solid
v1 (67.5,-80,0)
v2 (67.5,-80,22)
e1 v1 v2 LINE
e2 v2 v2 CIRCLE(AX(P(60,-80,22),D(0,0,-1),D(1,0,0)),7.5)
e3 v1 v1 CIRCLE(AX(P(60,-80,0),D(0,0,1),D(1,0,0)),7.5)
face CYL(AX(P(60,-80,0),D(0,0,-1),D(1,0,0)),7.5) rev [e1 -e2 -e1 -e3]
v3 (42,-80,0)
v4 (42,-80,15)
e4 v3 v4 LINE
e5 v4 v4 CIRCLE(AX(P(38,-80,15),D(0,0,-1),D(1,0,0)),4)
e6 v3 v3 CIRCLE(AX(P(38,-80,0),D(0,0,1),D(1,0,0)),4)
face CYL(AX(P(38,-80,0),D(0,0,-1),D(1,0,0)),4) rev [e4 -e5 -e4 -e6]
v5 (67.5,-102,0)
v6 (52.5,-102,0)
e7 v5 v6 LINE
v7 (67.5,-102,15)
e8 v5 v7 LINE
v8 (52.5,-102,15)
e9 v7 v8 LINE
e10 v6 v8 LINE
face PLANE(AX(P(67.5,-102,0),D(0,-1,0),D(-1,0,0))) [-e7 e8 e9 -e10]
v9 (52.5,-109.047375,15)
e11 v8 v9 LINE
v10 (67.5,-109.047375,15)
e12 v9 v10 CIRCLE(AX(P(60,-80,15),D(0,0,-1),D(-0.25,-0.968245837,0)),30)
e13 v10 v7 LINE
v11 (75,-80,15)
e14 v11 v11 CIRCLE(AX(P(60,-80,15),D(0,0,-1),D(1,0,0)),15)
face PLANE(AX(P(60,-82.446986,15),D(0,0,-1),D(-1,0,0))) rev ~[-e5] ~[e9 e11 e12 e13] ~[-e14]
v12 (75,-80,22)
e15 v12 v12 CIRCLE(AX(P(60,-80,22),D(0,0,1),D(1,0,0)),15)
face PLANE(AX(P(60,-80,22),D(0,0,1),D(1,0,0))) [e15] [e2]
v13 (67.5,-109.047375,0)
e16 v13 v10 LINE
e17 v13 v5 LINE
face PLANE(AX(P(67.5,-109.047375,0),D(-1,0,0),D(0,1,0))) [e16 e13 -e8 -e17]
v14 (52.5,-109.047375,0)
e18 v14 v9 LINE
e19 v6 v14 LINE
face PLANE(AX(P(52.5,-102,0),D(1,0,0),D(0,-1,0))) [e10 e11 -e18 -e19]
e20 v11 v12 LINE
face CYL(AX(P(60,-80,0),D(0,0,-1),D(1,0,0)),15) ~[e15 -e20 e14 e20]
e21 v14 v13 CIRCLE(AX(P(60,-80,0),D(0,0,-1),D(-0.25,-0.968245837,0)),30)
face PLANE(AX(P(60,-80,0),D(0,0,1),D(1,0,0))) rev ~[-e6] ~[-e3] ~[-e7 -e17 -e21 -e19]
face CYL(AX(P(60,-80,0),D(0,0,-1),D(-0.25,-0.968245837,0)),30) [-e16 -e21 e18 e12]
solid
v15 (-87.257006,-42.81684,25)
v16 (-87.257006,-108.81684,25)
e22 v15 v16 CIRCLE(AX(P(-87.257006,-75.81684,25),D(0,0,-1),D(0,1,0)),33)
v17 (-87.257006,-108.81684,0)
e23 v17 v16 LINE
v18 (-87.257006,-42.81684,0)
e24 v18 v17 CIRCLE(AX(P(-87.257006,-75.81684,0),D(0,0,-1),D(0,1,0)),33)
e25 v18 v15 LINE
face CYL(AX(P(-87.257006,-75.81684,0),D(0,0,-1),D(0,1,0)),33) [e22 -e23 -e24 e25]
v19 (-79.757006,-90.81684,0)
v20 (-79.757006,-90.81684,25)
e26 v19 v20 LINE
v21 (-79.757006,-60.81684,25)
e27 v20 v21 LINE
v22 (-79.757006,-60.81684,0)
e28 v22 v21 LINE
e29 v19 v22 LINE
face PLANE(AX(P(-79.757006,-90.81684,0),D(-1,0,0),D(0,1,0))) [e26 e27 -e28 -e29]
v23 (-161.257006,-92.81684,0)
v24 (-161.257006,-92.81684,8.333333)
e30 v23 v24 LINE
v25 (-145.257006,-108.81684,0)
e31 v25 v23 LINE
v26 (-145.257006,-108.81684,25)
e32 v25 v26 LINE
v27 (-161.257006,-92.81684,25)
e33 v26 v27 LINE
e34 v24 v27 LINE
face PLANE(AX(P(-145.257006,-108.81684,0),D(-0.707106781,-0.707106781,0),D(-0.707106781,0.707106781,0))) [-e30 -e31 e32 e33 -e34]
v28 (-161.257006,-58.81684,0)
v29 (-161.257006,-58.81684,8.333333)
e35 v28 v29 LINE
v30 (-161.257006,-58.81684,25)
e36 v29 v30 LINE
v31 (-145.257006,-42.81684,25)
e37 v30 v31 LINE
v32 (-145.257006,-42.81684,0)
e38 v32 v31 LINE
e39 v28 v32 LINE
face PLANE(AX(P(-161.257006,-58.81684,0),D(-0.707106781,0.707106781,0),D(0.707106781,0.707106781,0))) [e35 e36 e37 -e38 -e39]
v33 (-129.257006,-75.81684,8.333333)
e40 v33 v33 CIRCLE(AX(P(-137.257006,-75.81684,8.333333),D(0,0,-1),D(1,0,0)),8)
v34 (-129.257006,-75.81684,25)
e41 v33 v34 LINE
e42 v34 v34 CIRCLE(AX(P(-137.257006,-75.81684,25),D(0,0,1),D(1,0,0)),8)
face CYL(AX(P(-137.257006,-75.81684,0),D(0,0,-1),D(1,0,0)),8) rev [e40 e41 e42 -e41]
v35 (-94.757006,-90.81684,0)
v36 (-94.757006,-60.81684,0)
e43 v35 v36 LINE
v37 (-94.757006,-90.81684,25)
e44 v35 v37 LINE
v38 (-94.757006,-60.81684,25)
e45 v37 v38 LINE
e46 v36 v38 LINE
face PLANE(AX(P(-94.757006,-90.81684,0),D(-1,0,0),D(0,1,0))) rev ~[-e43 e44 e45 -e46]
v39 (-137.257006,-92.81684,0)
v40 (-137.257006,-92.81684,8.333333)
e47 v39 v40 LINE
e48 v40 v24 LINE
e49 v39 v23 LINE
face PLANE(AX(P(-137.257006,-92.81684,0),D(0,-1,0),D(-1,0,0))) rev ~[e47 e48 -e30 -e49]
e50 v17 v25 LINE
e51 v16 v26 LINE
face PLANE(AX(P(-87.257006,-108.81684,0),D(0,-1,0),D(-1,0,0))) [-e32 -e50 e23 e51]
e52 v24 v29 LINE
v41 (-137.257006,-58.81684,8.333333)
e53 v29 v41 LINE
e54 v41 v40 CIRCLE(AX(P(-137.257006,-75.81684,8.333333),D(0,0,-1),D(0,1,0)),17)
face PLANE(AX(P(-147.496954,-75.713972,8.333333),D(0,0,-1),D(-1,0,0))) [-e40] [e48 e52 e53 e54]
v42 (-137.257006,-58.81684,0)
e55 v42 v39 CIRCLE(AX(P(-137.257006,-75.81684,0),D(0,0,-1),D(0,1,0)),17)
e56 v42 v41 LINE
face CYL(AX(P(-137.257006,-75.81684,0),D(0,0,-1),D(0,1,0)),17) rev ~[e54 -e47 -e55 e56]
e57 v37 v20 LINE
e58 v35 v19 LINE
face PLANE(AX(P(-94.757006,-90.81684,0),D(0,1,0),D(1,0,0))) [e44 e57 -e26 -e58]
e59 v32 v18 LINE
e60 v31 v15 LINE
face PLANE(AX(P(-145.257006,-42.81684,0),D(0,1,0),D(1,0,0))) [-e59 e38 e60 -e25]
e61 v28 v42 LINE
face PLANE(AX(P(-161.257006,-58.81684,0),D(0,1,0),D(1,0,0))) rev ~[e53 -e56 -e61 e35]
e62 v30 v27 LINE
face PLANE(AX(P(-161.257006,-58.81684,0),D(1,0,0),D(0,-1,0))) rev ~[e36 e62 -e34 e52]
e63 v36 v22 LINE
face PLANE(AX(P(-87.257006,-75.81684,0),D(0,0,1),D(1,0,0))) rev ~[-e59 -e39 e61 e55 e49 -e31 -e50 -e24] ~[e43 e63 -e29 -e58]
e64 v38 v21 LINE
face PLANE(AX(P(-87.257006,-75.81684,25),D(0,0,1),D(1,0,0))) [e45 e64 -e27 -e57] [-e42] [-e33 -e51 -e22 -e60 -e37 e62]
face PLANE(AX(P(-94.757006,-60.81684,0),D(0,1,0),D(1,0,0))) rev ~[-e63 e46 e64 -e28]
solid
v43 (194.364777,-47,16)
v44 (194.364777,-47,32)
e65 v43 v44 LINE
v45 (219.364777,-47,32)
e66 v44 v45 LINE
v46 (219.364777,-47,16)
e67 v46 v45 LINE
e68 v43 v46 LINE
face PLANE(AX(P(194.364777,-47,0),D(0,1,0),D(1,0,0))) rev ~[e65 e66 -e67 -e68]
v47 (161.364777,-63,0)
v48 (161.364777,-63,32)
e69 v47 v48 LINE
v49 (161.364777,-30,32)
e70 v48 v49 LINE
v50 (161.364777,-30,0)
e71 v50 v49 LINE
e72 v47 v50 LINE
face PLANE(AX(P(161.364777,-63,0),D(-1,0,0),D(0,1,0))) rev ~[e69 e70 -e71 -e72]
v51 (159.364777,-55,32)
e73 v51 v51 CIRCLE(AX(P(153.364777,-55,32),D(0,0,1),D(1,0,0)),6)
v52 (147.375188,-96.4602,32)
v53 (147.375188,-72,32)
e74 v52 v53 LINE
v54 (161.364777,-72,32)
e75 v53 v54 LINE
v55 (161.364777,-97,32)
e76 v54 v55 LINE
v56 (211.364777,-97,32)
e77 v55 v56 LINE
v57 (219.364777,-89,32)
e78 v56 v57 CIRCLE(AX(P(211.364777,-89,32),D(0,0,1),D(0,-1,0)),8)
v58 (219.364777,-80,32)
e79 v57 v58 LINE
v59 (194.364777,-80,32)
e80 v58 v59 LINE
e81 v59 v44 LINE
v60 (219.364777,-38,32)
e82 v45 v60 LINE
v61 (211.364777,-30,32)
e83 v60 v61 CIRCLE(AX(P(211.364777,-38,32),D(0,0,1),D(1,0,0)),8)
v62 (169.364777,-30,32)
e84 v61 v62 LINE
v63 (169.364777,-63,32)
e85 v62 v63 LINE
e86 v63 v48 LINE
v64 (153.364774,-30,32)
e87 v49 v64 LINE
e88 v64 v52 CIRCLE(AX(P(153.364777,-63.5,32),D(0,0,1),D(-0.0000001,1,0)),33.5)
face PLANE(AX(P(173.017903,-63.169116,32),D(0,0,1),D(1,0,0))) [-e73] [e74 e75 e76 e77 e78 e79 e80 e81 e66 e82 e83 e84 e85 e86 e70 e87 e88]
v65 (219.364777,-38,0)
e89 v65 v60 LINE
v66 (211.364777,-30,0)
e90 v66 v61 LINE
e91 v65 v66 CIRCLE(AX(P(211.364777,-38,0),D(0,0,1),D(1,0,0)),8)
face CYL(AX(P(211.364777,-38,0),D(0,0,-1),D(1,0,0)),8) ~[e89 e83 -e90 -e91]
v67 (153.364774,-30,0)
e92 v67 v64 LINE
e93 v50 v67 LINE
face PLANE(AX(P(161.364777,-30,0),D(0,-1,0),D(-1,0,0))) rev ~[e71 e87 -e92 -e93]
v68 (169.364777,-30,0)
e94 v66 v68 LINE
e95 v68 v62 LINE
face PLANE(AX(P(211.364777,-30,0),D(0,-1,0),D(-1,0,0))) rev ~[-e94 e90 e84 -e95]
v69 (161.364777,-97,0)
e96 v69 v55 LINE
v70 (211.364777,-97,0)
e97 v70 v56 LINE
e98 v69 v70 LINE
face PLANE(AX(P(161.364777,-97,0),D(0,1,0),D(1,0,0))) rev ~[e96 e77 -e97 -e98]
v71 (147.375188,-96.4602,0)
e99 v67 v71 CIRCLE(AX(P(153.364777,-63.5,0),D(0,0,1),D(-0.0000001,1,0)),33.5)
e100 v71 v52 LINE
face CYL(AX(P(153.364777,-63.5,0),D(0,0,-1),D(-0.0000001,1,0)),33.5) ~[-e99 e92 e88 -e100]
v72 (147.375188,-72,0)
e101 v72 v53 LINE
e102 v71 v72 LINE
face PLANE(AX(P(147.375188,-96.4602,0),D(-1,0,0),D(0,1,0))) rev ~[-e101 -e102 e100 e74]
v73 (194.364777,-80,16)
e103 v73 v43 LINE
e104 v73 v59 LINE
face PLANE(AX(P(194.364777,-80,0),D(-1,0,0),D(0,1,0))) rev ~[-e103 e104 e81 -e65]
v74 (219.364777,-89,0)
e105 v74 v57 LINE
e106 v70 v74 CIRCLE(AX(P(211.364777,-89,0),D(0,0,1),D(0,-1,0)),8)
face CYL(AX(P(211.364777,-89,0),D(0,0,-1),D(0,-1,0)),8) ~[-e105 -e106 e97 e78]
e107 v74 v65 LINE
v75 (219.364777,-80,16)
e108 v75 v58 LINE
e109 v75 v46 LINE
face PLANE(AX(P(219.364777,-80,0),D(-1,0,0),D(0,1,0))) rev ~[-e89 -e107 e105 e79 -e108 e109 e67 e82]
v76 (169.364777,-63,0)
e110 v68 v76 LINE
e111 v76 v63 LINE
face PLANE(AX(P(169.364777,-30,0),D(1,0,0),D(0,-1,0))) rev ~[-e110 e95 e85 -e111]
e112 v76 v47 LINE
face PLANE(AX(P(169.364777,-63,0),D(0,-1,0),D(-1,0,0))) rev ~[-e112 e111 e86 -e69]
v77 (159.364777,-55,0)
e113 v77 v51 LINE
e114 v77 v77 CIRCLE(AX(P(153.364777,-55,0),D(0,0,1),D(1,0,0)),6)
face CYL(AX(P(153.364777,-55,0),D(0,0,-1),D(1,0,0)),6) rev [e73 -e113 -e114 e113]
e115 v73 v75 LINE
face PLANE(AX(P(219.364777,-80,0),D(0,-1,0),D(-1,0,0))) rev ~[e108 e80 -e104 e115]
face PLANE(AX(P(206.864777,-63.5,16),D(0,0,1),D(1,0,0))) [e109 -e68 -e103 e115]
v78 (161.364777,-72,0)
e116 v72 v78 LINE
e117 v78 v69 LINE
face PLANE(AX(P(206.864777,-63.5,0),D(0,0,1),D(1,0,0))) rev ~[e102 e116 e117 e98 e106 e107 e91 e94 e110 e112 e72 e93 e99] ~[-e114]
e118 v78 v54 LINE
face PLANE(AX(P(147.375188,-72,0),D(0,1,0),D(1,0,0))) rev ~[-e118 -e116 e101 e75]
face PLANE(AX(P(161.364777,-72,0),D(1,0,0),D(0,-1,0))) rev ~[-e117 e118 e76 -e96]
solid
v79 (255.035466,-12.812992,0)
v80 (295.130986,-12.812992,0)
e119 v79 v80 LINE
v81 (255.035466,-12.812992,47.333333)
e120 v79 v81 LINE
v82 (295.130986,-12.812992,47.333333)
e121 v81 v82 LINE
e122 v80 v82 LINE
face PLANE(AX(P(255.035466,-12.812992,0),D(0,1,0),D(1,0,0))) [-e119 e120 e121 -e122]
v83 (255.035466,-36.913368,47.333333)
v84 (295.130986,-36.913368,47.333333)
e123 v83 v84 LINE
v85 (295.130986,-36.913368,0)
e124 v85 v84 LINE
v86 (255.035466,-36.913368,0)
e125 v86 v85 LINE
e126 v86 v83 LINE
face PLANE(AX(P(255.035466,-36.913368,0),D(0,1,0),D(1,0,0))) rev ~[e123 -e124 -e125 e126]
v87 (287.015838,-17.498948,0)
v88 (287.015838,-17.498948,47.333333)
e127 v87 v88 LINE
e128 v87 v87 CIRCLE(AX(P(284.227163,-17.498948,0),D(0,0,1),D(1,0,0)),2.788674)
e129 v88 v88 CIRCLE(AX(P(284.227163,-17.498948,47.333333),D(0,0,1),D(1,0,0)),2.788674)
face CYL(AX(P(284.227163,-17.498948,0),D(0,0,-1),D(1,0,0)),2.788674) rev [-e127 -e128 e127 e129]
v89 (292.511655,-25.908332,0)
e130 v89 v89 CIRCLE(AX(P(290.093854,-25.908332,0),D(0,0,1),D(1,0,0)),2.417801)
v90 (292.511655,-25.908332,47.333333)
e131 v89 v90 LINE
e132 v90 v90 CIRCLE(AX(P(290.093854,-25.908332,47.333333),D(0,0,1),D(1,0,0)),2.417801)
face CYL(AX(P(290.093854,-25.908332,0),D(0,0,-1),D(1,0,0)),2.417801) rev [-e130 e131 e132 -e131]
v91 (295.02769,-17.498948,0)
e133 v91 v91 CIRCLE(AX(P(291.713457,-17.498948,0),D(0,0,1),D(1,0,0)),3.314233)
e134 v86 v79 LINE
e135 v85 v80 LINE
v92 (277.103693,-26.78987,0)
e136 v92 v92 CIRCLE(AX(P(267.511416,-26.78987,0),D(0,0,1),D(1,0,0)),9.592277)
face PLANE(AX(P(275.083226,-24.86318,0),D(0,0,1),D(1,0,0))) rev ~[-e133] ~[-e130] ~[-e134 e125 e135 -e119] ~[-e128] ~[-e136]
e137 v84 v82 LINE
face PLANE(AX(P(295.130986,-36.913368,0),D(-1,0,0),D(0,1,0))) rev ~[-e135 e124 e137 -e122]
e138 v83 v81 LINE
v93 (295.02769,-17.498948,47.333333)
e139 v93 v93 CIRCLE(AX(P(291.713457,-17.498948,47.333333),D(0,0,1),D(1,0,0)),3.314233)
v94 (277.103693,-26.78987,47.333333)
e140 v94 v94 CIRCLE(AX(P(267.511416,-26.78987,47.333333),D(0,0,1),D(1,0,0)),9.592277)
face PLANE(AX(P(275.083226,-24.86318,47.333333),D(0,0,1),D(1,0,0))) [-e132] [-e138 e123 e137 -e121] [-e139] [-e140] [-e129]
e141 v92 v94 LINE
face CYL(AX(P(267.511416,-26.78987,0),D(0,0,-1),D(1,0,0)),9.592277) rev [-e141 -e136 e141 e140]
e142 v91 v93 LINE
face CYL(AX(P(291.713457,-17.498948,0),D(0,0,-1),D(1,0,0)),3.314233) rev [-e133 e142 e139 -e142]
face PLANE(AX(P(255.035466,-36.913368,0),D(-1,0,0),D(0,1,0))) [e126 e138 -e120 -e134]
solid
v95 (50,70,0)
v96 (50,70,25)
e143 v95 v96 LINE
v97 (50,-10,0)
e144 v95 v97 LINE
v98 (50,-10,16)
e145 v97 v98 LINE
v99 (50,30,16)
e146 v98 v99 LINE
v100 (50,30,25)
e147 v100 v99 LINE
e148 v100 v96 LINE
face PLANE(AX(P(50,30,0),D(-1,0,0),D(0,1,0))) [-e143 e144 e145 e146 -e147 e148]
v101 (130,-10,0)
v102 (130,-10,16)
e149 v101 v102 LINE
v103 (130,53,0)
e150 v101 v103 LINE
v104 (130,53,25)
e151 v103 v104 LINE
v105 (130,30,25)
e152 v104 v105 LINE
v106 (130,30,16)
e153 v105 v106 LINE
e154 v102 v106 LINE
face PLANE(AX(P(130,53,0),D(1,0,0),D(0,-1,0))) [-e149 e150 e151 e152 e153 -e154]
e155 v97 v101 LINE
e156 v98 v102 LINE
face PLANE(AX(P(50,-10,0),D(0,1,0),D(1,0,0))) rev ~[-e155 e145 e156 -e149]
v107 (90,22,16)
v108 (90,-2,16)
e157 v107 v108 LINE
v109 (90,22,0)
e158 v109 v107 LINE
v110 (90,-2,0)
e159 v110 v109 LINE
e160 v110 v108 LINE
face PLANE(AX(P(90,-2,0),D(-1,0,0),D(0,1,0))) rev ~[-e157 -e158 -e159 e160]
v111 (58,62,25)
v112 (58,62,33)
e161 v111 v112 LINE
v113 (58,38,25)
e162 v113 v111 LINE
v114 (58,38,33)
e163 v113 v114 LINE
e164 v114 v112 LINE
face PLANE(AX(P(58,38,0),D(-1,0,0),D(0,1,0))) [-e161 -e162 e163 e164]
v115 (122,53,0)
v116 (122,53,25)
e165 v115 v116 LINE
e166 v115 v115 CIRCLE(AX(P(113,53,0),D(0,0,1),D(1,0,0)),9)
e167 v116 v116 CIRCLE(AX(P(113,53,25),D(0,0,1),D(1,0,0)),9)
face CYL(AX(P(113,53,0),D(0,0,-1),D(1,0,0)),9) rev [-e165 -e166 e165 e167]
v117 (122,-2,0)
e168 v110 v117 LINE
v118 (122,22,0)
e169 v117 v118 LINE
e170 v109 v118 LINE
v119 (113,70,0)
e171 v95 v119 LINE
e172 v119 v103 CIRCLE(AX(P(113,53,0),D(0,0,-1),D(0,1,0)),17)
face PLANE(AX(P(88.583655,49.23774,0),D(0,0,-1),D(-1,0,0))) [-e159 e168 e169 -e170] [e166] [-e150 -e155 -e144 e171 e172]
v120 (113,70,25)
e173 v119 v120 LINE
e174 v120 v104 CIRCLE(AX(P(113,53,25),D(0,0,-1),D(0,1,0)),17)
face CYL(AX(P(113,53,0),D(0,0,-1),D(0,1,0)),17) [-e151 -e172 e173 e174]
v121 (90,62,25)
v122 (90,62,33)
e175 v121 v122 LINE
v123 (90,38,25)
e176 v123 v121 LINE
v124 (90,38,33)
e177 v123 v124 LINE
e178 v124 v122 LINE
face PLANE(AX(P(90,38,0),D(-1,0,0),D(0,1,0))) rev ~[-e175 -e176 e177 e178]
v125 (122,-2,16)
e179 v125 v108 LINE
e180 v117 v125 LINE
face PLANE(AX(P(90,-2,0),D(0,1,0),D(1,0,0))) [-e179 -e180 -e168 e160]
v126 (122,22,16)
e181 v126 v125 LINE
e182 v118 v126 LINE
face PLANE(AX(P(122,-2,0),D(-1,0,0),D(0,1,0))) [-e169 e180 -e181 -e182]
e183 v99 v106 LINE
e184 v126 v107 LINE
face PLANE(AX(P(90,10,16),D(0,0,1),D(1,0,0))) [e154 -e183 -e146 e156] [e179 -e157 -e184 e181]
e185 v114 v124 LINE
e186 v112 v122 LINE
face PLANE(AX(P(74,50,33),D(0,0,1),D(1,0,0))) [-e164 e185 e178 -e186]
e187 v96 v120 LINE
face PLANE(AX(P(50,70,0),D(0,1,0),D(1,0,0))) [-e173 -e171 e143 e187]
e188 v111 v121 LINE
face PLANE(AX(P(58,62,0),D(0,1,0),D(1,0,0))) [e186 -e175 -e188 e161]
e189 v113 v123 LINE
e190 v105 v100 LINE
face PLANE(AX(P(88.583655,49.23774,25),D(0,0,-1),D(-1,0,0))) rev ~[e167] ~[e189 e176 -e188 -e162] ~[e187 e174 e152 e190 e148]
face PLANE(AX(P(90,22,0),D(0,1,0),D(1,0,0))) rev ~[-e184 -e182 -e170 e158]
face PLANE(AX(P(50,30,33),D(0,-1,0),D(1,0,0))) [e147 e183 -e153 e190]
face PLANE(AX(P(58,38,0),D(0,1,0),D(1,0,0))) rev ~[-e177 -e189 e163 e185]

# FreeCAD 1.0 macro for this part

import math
import FreeCAD as App
import Part
import Sketcher
Q = App.Units.Quantity

doc = App.newDocument("Part")
body = doc.addObject("PartDesign::Body", "Body")

# Sketch on XY plane
sketch1 = body.newObject("Sketcher::SketchObject", "Sketch")
sketch1.AttachmentSupport = (doc.getObject("XY_Plane"), [""])
sketch1.MapMode = "FlatFace"
sketch1.addGeometry([
    Part.ArcOfCircle(Part.Circle(App.Vector(113, 53, 0), App.Vector(0, 0, 1), 17), math.radians(0), math.radians(90)),  # 0
    Part.LineSegment(App.Vector(113, 70, 0), App.Vector(50, 70, 0)),  # 1
    Part.LineSegment(App.Vector(50, 70, 0), App.Vector(50, 30, 0)),  # 2
    Part.LineSegment(App.Vector(50, 30, 0), App.Vector(130, 30, 0)),  # 3
    Part.LineSegment(App.Vector(130, 30, 0), App.Vector(130, 53, 0)),  # 4
    Part.Circle(App.Vector(113, 53, 0), App.Vector(0, 0, 1), 9),  # 5
    Part.LineSegment(App.Vector(58, 38, 0), App.Vector(58, 62, 0)),  # 6
    Part.LineSegment(App.Vector(58, 62, 0), App.Vector(90, 62, 0)),  # 7
    Part.LineSegment(App.Vector(90, 62, 0), App.Vector(90, 38, 0)),  # 8
    Part.LineSegment(App.Vector(90, 38, 0), App.Vector(58, 38, 0)),  # 9
], False)
sketch1.addConstraint([
    Sketcher.Constraint("Tangent", 0, 2, 1, 1),
    Sketcher.Constraint("Coincident", 1, 2, 2, 1),
    Sketcher.Constraint("Coincident", 2, 2, 3, 1),
    Sketcher.Constraint("Coincident", 3, 2, 4, 1),
    Sketcher.Constraint("Tangent", 4, 2, 0, 1),
    Sketcher.Constraint("Coincident", 6, 2, 7, 1),
    Sketcher.Constraint("Coincident", 7, 2, 8, 1),
    Sketcher.Constraint("Coincident", 8, 2, 9, 1),
    Sketcher.Constraint("Coincident", 9, 2, 6, 1),
    Sketcher.Constraint("Horizontal", 1),
    Sketcher.Constraint("Vertical", 2),
    Sketcher.Constraint("Horizontal", 3),
    Sketcher.Constraint("Vertical", 4),
    Sketcher.Constraint("Vertical", 6),
    Sketcher.Constraint("Horizontal", 7),
    Sketcher.Constraint("Vertical", 8),
    Sketcher.Constraint("Horizontal", 9),
    Sketcher.Constraint("Coincident", 5, 3, 0, 3),
    Sketcher.Constraint("Diameter", 5, Q("18 mm")),
    Sketcher.Constraint("Radius", 0, Q("17 mm")),
    Sketcher.Constraint("DistanceX", 1, 2, 1, 1, Q("63 mm")),
    Sketcher.Constraint("DistanceX", 7, 1, 7, 2, Q("32 mm")),
    Sketcher.Constraint("DistanceY", 2, 2, 2, 1, Q("40 mm")),
    Sketcher.Constraint("DistanceY", 6, 1, 6, 2, Q("24 mm")),
    Sketcher.Constraint("DistanceX", -1, 1, 0, 3, Q("113 mm")),
    Sketcher.Constraint("DistanceY", -1, 1, 0, 3, Q("53 mm")),
    Sketcher.Constraint("DistanceX", -1, 1, 6, 2, Q("58 mm")),
    Sketcher.Constraint("DistanceY", -1, 1, 6, 2, Q("62 mm")),
])
pad1 = body.newObject("PartDesign::Pad", "Pad")
pad1.Profile = sketch1
pad1.Length = 25

# Sketch on XY plane
sketch2 = body.newObject("Sketcher::SketchObject", "Sketch001")
sketch2.AttachmentSupport = (doc.getObject("XY_Plane"), [""])
sketch2.MapMode = "FlatFace"
sketch2.addGeometry([
    Part.LineSegment(App.Vector(58, 62, 0), App.Vector(58, 38, 0)),  # 0
    Part.LineSegment(App.Vector(58, 38, 0), App.Vector(90, 38, 0)),  # 1
    Part.LineSegment(App.Vector(90, 38, 0), App.Vector(90, 62, 0)),  # 2
    Part.LineSegment(App.Vector(90, 62, 0), App.Vector(58, 62, 0)),  # 3
    Part.LineSegment(App.Vector(50, 30, 0), App.Vector(50, -10, 0)),  # 4
    Part.LineSegment(App.Vector(50, -10, 0), App.Vector(130, -10, 0)),  # 5
    Part.LineSegment(App.Vector(130, -10, 0), App.Vector(130, 30, 0)),  # 6
    Part.LineSegment(App.Vector(130, 30, 0), App.Vector(50, 30, 0)),  # 7
], False)
sketch2.addConstraint([
    Sketcher.Constraint("Coincident", 0, 2, 1, 1),
    Sketcher.Constraint("Coincident", 1, 2, 2, 1),
    Sketcher.Constraint("Coincident", 2, 2, 3, 1),
    Sketcher.Constraint("Coincident", 3, 2, 0, 1),
    Sketcher.Constraint("Coincident", 4, 2, 5, 1),
    Sketcher.Constraint("Coincident", 5, 2, 6, 1),
    Sketcher.Constraint("Coincident", 6, 2, 7, 1),
    Sketcher.Constraint("Coincident", 7, 2, 4, 1),
    Sketcher.Constraint("Vertical", 0),
    Sketcher.Constraint("Horizontal", 1),
    Sketcher.Constraint("Vertical", 2),
    Sketcher.Constraint("Horizontal", 3),
    Sketcher.Constraint("Vertical", 4),
    Sketcher.Constraint("Horizontal", 5),
    Sketcher.Constraint("Vertical", 6),
    Sketcher.Constraint("Horizontal", 7),
    Sketcher.Constraint("DistanceX", 1, 1, 1, 2, Q("32 mm")),
    Sketcher.Constraint("DistanceX", 5, 1, 5, 2, Q("80 mm")),
    Sketcher.Constraint("DistanceY", 0, 2, 0, 1, Q("24 mm")),
    Sketcher.Constraint("DistanceY", 4, 2, 4, 1, Q("40 mm")),
    Sketcher.Constraint("DistanceX", -1, 1, 0, 2, Q("58 mm")),
    Sketcher.Constraint("DistanceY", -1, 1, 0, 2, Q("38 mm")),
    Sketcher.Constraint("DistanceX", -1, 1, 4, 2, Q("50 mm")),
    Sketcher.Constraint("DistanceY", 4, 2, -1, 1, Q("10 mm")),
])
pad2 = body.newObject("PartDesign::Pad", "Pad001")
pad2.Profile = sketch2
pad2.Length = 33

# Sketch on XY plane
sketch3 = body.newObject("Sketcher::SketchObject", "Sketch002")
sketch3.AttachmentSupport = (doc.getObject("XY_Plane"), [""])
sketch3.MapMode = "FlatFace"
sketch3.AttachmentOffset = App.Placement(App.Vector(0, 0, 33), App.Rotation())
sketch3.addGeometry([
    Part.LineSegment(App.Vector(50, 30, 0), App.Vector(50, -10, 0)),
    Part.LineSegment(App.Vector(50, -10, 0), App.Vector(130, -10, 0)),
    Part.LineSegment(App.Vector(130, -10, 0), App.Vector(130, 30, 0)),
    Part.LineSegment(App.Vector(130, 30, 0), App.Vector(50, 30, 0)),
], False)
sketch3.addConstraint([
    Sketcher.Constraint("Coincident", 0, 2, 1, 1),
    Sketcher.Constraint("Coincident", 1, 2, 2, 1),
    Sketcher.Constraint("Coincident", 2, 2, 3, 1),
    Sketcher.Constraint("Coincident", 3, 2, 0, 1),
    Sketcher.Constraint("Vertical", 0),
    Sketcher.Constraint("Horizontal", 1),
    Sketcher.Constraint("Vertical", 2),
    Sketcher.Constraint("Horizontal", 3),
    Sketcher.Constraint("DistanceX", 1, 1, 1, 2, Q("80 mm")),
    Sketcher.Constraint("DistanceY", 0, 2, 0, 1, Q("40 mm")),
    Sketcher.Constraint("DistanceX", -1, 1, 0, 2, Q("50 mm")),
    Sketcher.Constraint("DistanceY", 0, 2, -1, 1, Q("10 mm")),
])
pocket1 = body.newObject("PartDesign::Pocket", "Pocket")
pocket1.Profile = sketch3
pocket1.Length = 17

# Sketch on XY plane
sketch4 = body.newObject("Sketcher::SketchObject", "Sketch003")
sketch4.AttachmentSupport = (doc.getObject("XY_Plane"), [""])
sketch4.MapMode = "FlatFace"
sketch4.addGeometry([
    Part.LineSegment(App.Vector(90, 22, 0), App.Vector(90, -2, 0)),
    Part.LineSegment(App.Vector(90, -2, 0), App.Vector(122, -2, 0)),
    Part.LineSegment(App.Vector(122, -2, 0), App.Vector(122, 22, 0)),
    Part.LineSegment(App.Vector(122, 22, 0), App.Vector(90, 22, 0)),
], False)
sketch4.addConstraint([
    Sketcher.Constraint("Coincident", 0, 2, 1, 1),
    Sketcher.Constraint("Coincident", 1, 2, 2, 1),
    Sketcher.Constraint("Coincident", 2, 2, 3, 1),
    Sketcher.Constraint("Coincident", 3, 2, 0, 1),
    Sketcher.Constraint("Vertical", 0),
    Sketcher.Constraint("Horizontal", 1),
    Sketcher.Constraint("Vertical", 2),
    Sketcher.Constraint("Horizontal", 3),
    Sketcher.Constraint("DistanceX", 1, 1, 1, 2, Q("32 mm")),
    Sketcher.Constraint("DistanceY", 0, 2, 0, 1, Q("24 mm")),
    Sketcher.Constraint("DistanceX", -1, 1, 0, 2, Q("90 mm")),
    Sketcher.Constraint("DistanceY", 0, 2, -1, 1, Q("2 mm")),
])
pocket2 = body.newObject("PartDesign::Pocket", "Pocket001")
pocket2.Profile = sketch4
pocket2.Length = 30
pocket2.Reversed = True
body2 = doc.addObject("PartDesign::Body", "Body001")

# Sketch on XY plane
sketch5 = body2.newObject("Sketcher::SketchObject", "Sketch004")
sketch5.AttachmentSupport = (doc.getObject("XY_Plane001"), [""])
sketch5.MapMode = "FlatFace"
sketch5.addGeometry([
    Part.LineSegment(App.Vector(52, -109, 0), App.Vector(52, -102, 0)),
    Part.LineSegment(App.Vector(52, -102, 0), App.Vector(68, -102, 0)),
    Part.LineSegment(App.Vector(68, -102, 0), App.Vector(68, -109, 0)),
    Part.ArcOfCircle(Part.Circle(App.Vector(60, -80, 0), App.Vector(0, 0, 1), 30), math.radians(-76), math.radians(256)),
], False)
sketch5.addConstraint([
    Sketcher.Constraint("Coincident", 0, 2, 1, 1),
    Sketcher.Constraint("Coincident", 1, 2, 2, 1),
    Sketcher.Constraint("Coincident", 2, 2, 3, 1),
    Sketcher.Constraint("Coincident", 3, 2, 0, 1),
    Sketcher.Constraint("Vertical", 0),
    Sketcher.Constraint("Horizontal", 1),
    Sketcher.Constraint("Vertical", 2),
    Sketcher.Constraint("Horizontal", 2, 2, 3, 2),
    Sketcher.Constraint("Radius", 3, Q("30 mm")),
    Sketcher.Constraint("DistanceX", 1, 1, 1, 2, Q("15 mm")),
    Sketcher.Constraint("DistanceX", -1, 1, 3, 3, Q("60 mm")),
    Sketcher.Constraint("DistanceY", 3, 3, -1, 1, Q("80 mm")),
    Sketcher.Constraint("DistanceY", 0, 2, -1, 1, Q("102 mm")),
])
pad3 = body2.newObject("PartDesign::Pad", "Pad002")
pad3.Profile = sketch5
pad3.Length = 15

# Sketch on XY plane
sketch6 = body2.newObject("Sketcher::SketchObject", "Sketch005")
sketch6.AttachmentSupport = (doc.getObject("XY_Plane001"), [""])
sketch6.MapMode = "FlatFace"
sketch6.addGeometry(Part.Circle(App.Vector(60, -80, 0), App.Vector(0, 0, 1), 15), False)
sketch6.addConstraint([
    Sketcher.Constraint("Diameter", 0, Q("30 mm")),
    Sketcher.Constraint("DistanceX", -1, 1, 0, 3, Q("60 mm")),
    Sketcher.Constraint("DistanceY", 0, 3, -1, 1, Q("80 mm")),
])
pad4 = body2.newObject("PartDesign::Pad", "Pad003")
pad4.Profile = sketch6
pad4.Length = 22

# Sketch on XY plane
sketch7 = body2.newObject("Sketcher::SketchObject", "Sketch006")
sketch7.AttachmentSupport = (doc.getObject("XY_Plane001"), [""])
sketch7.MapMode = "FlatFace"
sketch7.addGeometry(Part.Circle(App.Vector(38, -80, 0), App.Vector(0, 0, 1), 4), False)
sketch7.addConstraint([
    Sketcher.Constraint("Diameter", 0, Q("8 mm")),
    Sketcher.Constraint("DistanceX", -1, 1, 0, 3, Q("38 mm")),
    Sketcher.Constraint("DistanceY", 0, 3, -1, 1, Q("80 mm")),
])
pocket3 = body2.newObject("PartDesign::Pocket", "Pocket002")
pocket3.Profile = sketch7
pocket3.Length = 48
pocket3.Reversed = True

# Sketch on XY plane
sketch8 = body2.newObject("Sketcher::SketchObject", "Sketch007")
sketch8.AttachmentSupport = (doc.getObject("XY_Plane001"), [""])
sketch8.MapMode = "FlatFace"
sketch8.addGeometry(Part.Circle(App.Vector(60, -80, 0), App.Vector(0, 0, 1), 8), False)
sketch8.addConstraint([
    Sketcher.Constraint("Diameter", 0, Q("15 mm")),
    Sketcher.Constraint("DistanceX", -1, 1, 0, 3, Q("60 mm")),
    Sketcher.Constraint("DistanceY", 0, 3, -1, 1, Q("80 mm")),
])
pocket4 = body2.newObject("PartDesign::Pocket", "Pocket003")
pocket4.Profile = sketch8
pocket4.Length = 48
pocket4.Reversed = True
body3 = doc.addObject("PartDesign::Body", "Body002")

# Sketch on XY plane
sketch9 = body3.newObject("Sketcher::SketchObject", "Sketch008")
sketch9.AttachmentSupport = (doc.getObject("XY_Plane002"), [""])
sketch9.MapMode = "FlatFace"
sketch9.addGeometry([
    Part.LineSegment(App.Vector(161, -63, 0), App.Vector(161, -30, 0)),  # 0
    Part.LineSegment(App.Vector(161, -30, 0), App.Vector(153, -30, 0)),  # 1
    Part.ArcOfCircle(Part.Circle(App.Vector(153, -64, 0), App.Vector(0, 0, 1), 34), math.radians(90), math.radians(260)),  # 2
    Part.LineSegment(App.Vector(147, -96, 0), App.Vector(147, -72, 0)),  # 3
    Part.LineSegment(App.Vector(147, -72, 0), App.Vector(161, -72, 0)),  # 4
    Part.LineSegment(App.Vector(161, -72, 0), App.Vector(161, -97, 0)),  # 5
    Part.LineSegment(App.Vector(161, -97, 0), App.Vector(211, -97, 0)),  # 6
    Part.ArcOfCircle(Part.Circle(App.Vector(211, -89, 0), App.Vector(0, 0, 1), 8), math.radians(-90), math.radians(0)),  # 7
    Part.LineSegment(App.Vector(219, -89, 0), App.Vector(219, -80, 0)),  # 8
    Part.LineSegment(App.Vector(219, -80, 0), App.Vector(194, -80, 0)),  # 9
    Part.LineSegment(App.Vector(194, -80, 0), App.Vector(194, -47, 0)),  # 10
    Part.LineSegment(App.Vector(194, -47, 0), App.Vector(219, -47, 0)),  # 11
    Part.LineSegment(App.Vector(219, -47, 0), App.Vector(219, -38, 0)),  # 12
    Part.ArcOfCircle(Part.Circle(App.Vector(211, -38, 0), App.Vector(0, 0, 1), 8), math.radians(0), math.radians(90)),  # 13
    Part.LineSegment(App.Vector(211, -30, 0), App.Vector(169, -30, 0)),  # 14
    Part.LineSegment(App.Vector(169, -30, 0), App.Vector(169, -63, 0)),  # 15
    Part.LineSegment(App.Vector(169, -63, 0), App.Vector(161, -63, 0)),  # 16
    Part.Circle(App.Vector(153, -55, 0), App.Vector(0, 0, 1), 6),  # 17
], False)
sketch9.addConstraint([
    Sketcher.Constraint("Coincident", 0, 2, 1, 1),
    Sketcher.Constraint("Tangent", 1, 2, 2, 1),
    Sketcher.Constraint("Coincident", 2, 2, 3, 1),
    Sketcher.Constraint("Coincident", 3, 2, 4, 1),
    Sketcher.Constraint("Coincident", 4, 2, 5, 1),
    Sketcher.Constraint("Coincident", 5, 2, 6, 1),
    Sketcher.Constraint("Tangent", 6, 2, 7, 1),
    Sketcher.Constraint("Tangent", 7, 2, 8, 1),
    Sketcher.Constraint("Coincident", 8, 2, 9, 1),
    Sketcher.Constraint("Coincident", 9, 2, 10, 1),
    Sketcher.Constraint("Coincident", 10, 2, 11, 1),
    Sketcher.Constraint("Coincident", 11, 2, 12, 1),
    Sketcher.Constraint("Tangent", 12, 2, 13, 1),
    Sketcher.Constraint("Tangent", 13, 2, 14, 1),
    Sketcher.Constraint("Coincident", 14, 2, 15, 1),
    Sketcher.Constraint("Coincident", 15, 2, 16, 1),
    Sketcher.Constraint("Coincident", 16, 2, 0, 1),
    Sketcher.Constraint("Vertical", 0),
    Sketcher.Constraint("Horizontal", 1),
    Sketcher.Constraint("Vertical", 3),
    Sketcher.Constraint("Horizontal", 4),
    Sketcher.Constraint("Vertical", 5),
    Sketcher.Constraint("Horizontal", 6),
    Sketcher.Constraint("Vertical", 8),
    Sketcher.Constraint("Horizontal", 9),
    Sketcher.Constraint("Vertical", 10),
    Sketcher.Constraint("Horizontal", 11),
    Sketcher.Constraint("Vertical", 12),
    Sketcher.Constraint("Horizontal", 14),
    Sketcher.Constraint("Vertical", 15),
    Sketcher.Constraint("Horizontal", 16),
    Sketcher.Constraint("Equal", 7, 13),
    Sketcher.Constraint("Horizontal", 1, 2, 13, 2),
    Sketcher.Constraint("Vertical", 7, 3, 13, 3),
    Sketcher.Constraint("Vertical", 2, 3, 17, 3),
    Sketcher.Constraint("Vertical", 0, 2, 4, 2),
    Sketcher.Constraint("Equal", 11, 5),
    Sketcher.Constraint("Equal", 0, 10),
    Sketcher.Constraint("Equal", 8, 12),
    Sketcher.Constraint("Diameter", 17, Q("12 mm")),
    Sketcher.Constraint("Radius", 7, Q("8 mm")),
    Sketcher.Constraint("Radius", 2, Q("33.5 mm")),
    Sketcher.Constraint("DistanceX", 6, 1, 6, 2, Q("50 mm")),
    Sketcher.Constraint("DistanceX", 9, 2, 9, 1, Q("25 mm")),
    Sketcher.Constraint("DistanceX", 14, 2, 14, 1, Q("42 mm")),
    Sketcher.Constraint("DistanceY", 0, 1, 0, 2, Q("33 mm")),
    Sketcher.Constraint("DistanceY", 8, 1, 8, 2, Q("9 mm")),
    Sketcher.Constraint("DistanceY", 7, 3, -1, 1, Q("89 mm")),
    Sketcher.Constraint("DistanceY", 17, 3, -1, 1, Q("55 mm")),
    Sketcher.Constraint("DistanceX", 2, 3, 7, 3, Q("58 mm")),
    Sketcher.Constraint("DistanceY", 3, 1, 3, 2, Q("24.4602 mm")),
    Sketcher.Constraint("DistanceX", -1, 1, 2, 3, Q("153.364777 mm")),
])
pad5 = body3.newObject("PartDesign::Pad", "Pad004")
pad5.Profile = sketch9
pad5.Length = 32

# Sketch on XY plane
sketch10 = body3.newObject("Sketcher::SketchObject", "Sketch009")
sketch10.AttachmentSupport = (doc.getObject("XY_Plane002"), [""])
sketch10.MapMode = "FlatFace"
sketch10.addGeometry([
    Part.LineSegment(App.Vector(194, -47, 0), App.Vector(194, -80, 0)),
    Part.LineSegment(App.Vector(194, -80, 0), App.Vector(219, -80, 0)),
    Part.LineSegment(App.Vector(219, -80, 0), App.Vector(219, -47, 0)),
    Part.LineSegment(App.Vector(219, -47, 0), App.Vector(194, -47, 0)),
], False)
sketch10.addConstraint([
    Sketcher.Constraint("Coincident", 0, 2, 1, 1),
    Sketcher.Constraint("Coincident", 1, 2, 2, 1),
    Sketcher.Constraint("Coincident", 2, 2, 3, 1),
    Sketcher.Constraint("Coincident", 3, 2, 0, 1),
    Sketcher.Constraint("Vertical", 0),
    Sketcher.Constraint("Horizontal", 1),
    Sketcher.Constraint("Vertical", 2),
    Sketcher.Constraint("Horizontal", 3),
    Sketcher.Constraint("DistanceX", 1, 1, 1, 2, Q("25 mm")),
    Sketcher.Constraint("DistanceY", 0, 2, 0, 1, Q("33 mm")),
    Sketcher.Constraint("DistanceY", 0, 2, -1, 1, Q("80 mm")),
    Sketcher.Constraint("DistanceX", -1, 1, 0, 2, Q("194.364777 mm")),
])
pad6 = body3.newObject("PartDesign::Pad", "Pad005")
pad6.Profile = sketch10
pad6.Length = 16
body4 = doc.addObject("PartDesign::Body", "Body003")

# Sketch on XY plane
sketch11 = body4.newObject("Sketcher::SketchObject", "Sketch010")
sketch11.AttachmentSupport = (doc.getObject("XY_Plane003"), [""])
sketch11.MapMode = "FlatFace"
sketch11.addGeometry([
    Part.LineSegment(App.Vector(-161, -93, 0), App.Vector(-145, -109, 0)),  # 0
    Part.LineSegment(App.Vector(-145, -109, 0), App.Vector(-87, -109, 0)),  # 1
    Part.ArcOfCircle(Part.Circle(App.Vector(-87, -76, 0), App.Vector(0, 0, 1), 33), math.radians(-90), math.radians(90)),  # 2
    Part.LineSegment(App.Vector(-87, -43, 0), App.Vector(-145, -43, 0)),  # 3
    Part.LineSegment(App.Vector(-145, -43, 0), App.Vector(-161, -59, 0)),  # 4
    Part.LineSegment(App.Vector(-161, -59, 0), App.Vector(-161, -93, 0)),  # 5
    Part.LineSegment(App.Vector(-80, -91, 0), App.Vector(-95, -91, 0)),  # 6
    Part.LineSegment(App.Vector(-95, -91, 0), App.Vector(-95, -61, 0)),  # 7
    Part.LineSegment(App.Vector(-95, -61, 0), App.Vector(-80, -61, 0)),  # 8
    Part.LineSegment(App.Vector(-80, -61, 0), App.Vector(-80, -91, 0)),  # 9
], False)
sketch11.addConstraint([
    Sketcher.Constraint("Coincident", 0, 2, 1, 1),
    Sketcher.Constraint("Tangent", 1, 2, 2, 1),
    Sketcher.Constraint("Tangent", 2, 2, 3, 1),
    Sketcher.Constraint("Coincident", 3, 2, 4, 1),
    Sketcher.Constraint("Coincident", 4, 2, 5, 1),
    Sketcher.Constraint("Coincident", 5, 2, 0, 1),
    Sketcher.Constraint("Coincident", 6, 2, 7, 1),
    Sketcher.Constraint("Coincident", 7, 2, 8, 1),
    Sketcher.Constraint("Coincident", 8, 2, 9, 1),
    Sketcher.Constraint("Coincident", 9, 2, 6, 1),
    Sketcher.Constraint("Horizontal", 1),
    Sketcher.Constraint("Horizontal", 3),
    Sketcher.Constraint("Vertical", 5),
    Sketcher.Constraint("Horizontal", 6),
    Sketcher.Constraint("Vertical", 7),
    Sketcher.Constraint("Horizontal", 8),
    Sketcher.Constraint("Vertical", 9),
    Sketcher.Constraint("Perpendicular", 0, 4),
    Sketcher.Constraint("Vertical", 0, 2, 3, 2),
    Sketcher.Constraint("Equal", 0, 4),
    Sketcher.Constraint("Radius", 2, Q("33 mm")),
    Sketcher.Constraint("DistanceX", 1, 1, 1, 2, Q("58 mm")),
    Sketcher.Constraint("DistanceX", 6, 2, 6, 1, Q("15 mm")),
    Sketcher.Constraint("DistanceY", 5, 2, 5, 1, Q("34 mm")),
    Sketcher.Constraint("DistanceY", 7, 1, 7, 2, Q("30 mm")),
    Sketcher.Constraint("DistanceY", 6, 2, 2, 3, Q("15 mm")),
    Sketcher.Constraint("DistanceX", 6, 2, 2, 3, Q("7.5 mm")),
    Sketcher.Constraint("DistanceY", 2, 3, -1, 1, Q("75.81684 mm")),
    Sketcher.Constraint("DistanceX", 2, 3, -1, 1, Q("87.257006 mm")),
])
pad7 = body4.newObject("PartDesign::Pad", "Pad006")
pad7.Profile = sketch11
pad7.Length = 25

# Sketch on XY plane
sketch12 = body4.newObject("Sketcher::SketchObject", "Sketch011")
sketch12.AttachmentSupport = (doc.getObject("XY_Plane003"), [""])
sketch12.MapMode = "FlatFace"
sketch12.addGeometry([
    Part.LineSegment(App.Vector(-95, -61, 0), App.Vector(-95, -91, 0)),
    Part.LineSegment(App.Vector(-95, -91, 0), App.Vector(-80, -91, 0)),
    Part.LineSegment(App.Vector(-80, -91, 0), App.Vector(-80, -61, 0)),
    Part.LineSegment(App.Vector(-80, -61, 0), App.Vector(-95, -61, 0)),
], False)
sketch12.addConstraint([
    Sketcher.Constraint("Coincident", 0, 2, 1, 1),
    Sketcher.Constraint("Coincident", 1, 2, 2, 1),
    Sketcher.Constraint("Coincident", 2, 2, 3, 1),
    Sketcher.Constraint("Coincident", 3, 2, 0, 1),
    Sketcher.Constraint("Vertical", 0),
    Sketcher.Constraint("Horizontal", 1),
    Sketcher.Constraint("Vertical", 2),
    Sketcher.Constraint("Horizontal", 3),
    Sketcher.Constraint("DistanceX", 1, 1, 1, 2, Q("15 mm")),
    Sketcher.Constraint("DistanceY", 0, 2, 0, 1, Q("30 mm")),
    Sketcher.Constraint("DistanceY", 0, 2, -1, 1, Q("90.81684 mm")),
    Sketcher.Constraint("DistanceX", 0, 2, -1, 1, Q("94.757006 mm")),
])
pocket5 = body4.newObject("PartDesign::Pocket", "Pocket004")
pocket5.Profile = sketch12
pocket5.Length = 25
pocket5.Reversed = True

# Sketch on XY plane
sketch13 = body4.newObject("Sketcher::SketchObject", "Sketch012")
sketch13.AttachmentSupport = (doc.getObject("XY_Plane003"), [""])
sketch13.MapMode = "FlatFace"
sketch13.addGeometry(Part.Circle(App.Vector(-137, -76, 0), App.Vector(0, 0, 1), 8), False)
sketch13.addConstraint([
    Sketcher.Constraint("Diameter", 0, Q("16 mm")),
    Sketcher.Constraint("DistanceY", 0, 3, -1, 1, Q("75.81684 mm")),
    Sketcher.Constraint("DistanceX", 0, 3, -1, 1, Q("137.257006 mm")),
])
pocket6 = body4.newObject("PartDesign::Pocket", "Pocket005")
pocket6.Profile = sketch13
pocket6.Length = 25
pocket6.Reversed = True

# Sketch on XY plane
sketch14 = body4.newObject("Sketcher::SketchObject", "Sketch013")
sketch14.AttachmentSupport = (doc.getObject("XY_Plane003"), [""])
sketch14.MapMode = "FlatFace"
sketch14.addGeometry([
    Part.LineSegment(App.Vector(-161, -59, 0), App.Vector(-137, -59, 0)),  # 0
    Part.ArcOfCircle(Part.Circle(App.Vector(-137, -76, 0), App.Vector(0, 0, 1), 17), math.radians(-90), math.radians(90)),  # 1
    Part.LineSegment(App.Vector(-137, -93, 0), App.Vector(-161, -93, 0)),  # 2
    Part.LineSegment(App.Vector(-161, -93, 0), App.Vector(-176, -74, 0)),  # 3
    Part.LineSegment(App.Vector(-176, -74, 0), App.Vector(-161, -59, 0)),  # 4
], False)
sketch14.addConstraint([
    Sketcher.Constraint("Tangent", 0, 2, 1, 2),
    Sketcher.Constraint("Tangent", 1, 1, 2, 1),
    Sketcher.Constraint("Coincident", 2, 2, 3, 1),
    Sketcher.Constraint("Coincident", 3, 2, 4, 1),
    Sketcher.Constraint("Coincident", 4, 2, 0, 1),
    Sketcher.Constraint("Horizontal", 0),
    Sketcher.Constraint("Horizontal", 2),
    Sketcher.Constraint("Vertical", 2, 2, 4, 2),
    Sketcher.Constraint("Radius", 1, Q("17 mm")),
    Sketcher.Constraint("DistanceX", 0, 1, 0, 2, Q("24 mm")),
    Sketcher.Constraint("DistanceX", 3, 2, 2, 2, Q("14.4687 mm")),
    Sketcher.Constraint("DistanceY", 2, 2, 3, 2, Q("18.570101 mm")),
    Sketcher.Constraint("DistanceY", 1, 3, -1, 1, Q("75.81684 mm")),
    Sketcher.Constraint("DistanceX", 1, 3, -1, 1, Q("137.257006 mm")),
])
pocket7 = body4.newObject("PartDesign::Pocket", "Pocket006")
pocket7.Profile = sketch14
pocket7.Length = 8.333333
pocket7.Reversed = True
body5 = doc.addObject("PartDesign::Body", "Body004")

# Sketch on XY plane
sketch15 = body5.newObject("Sketcher::SketchObject", "Sketch014")
sketch15.AttachmentSupport = (doc.getObject("XY_Plane004"), [""])
sketch15.MapMode = "FlatFace"
sketch15.addGeometry([
    Part.LineSegment(App.Vector(255, -12.8, 0), App.Vector(255, -36.9, 0)),  # 0
    Part.LineSegment(App.Vector(255, -36.9, 0), App.Vector(295.1, -36.9, 0)),  # 1
    Part.LineSegment(App.Vector(295.1, -36.9, 0), App.Vector(295.1, -12.8, 0)),  # 2
    Part.LineSegment(App.Vector(295.1, -12.8, 0), App.Vector(255, -12.8, 0)),  # 3
    Part.Circle(App.Vector(267.5, -26.8, 0), App.Vector(0, 0, 1), 9.6),  # 4
    Part.Circle(App.Vector(290.1, -25.9, 0), App.Vector(0, 0, 1), 2.4),  # 5
    Part.Circle(App.Vector(284.2, -17.5, 0), App.Vector(0, 0, 1), 2.8),  # 6
    Part.Circle(App.Vector(291.7, -17.5, 0), App.Vector(0, 0, 1), 3.3),  # 7
], False)
sketch15.addConstraint([
    Sketcher.Constraint("Coincident", 0, 2, 1, 1),
    Sketcher.Constraint("Coincident", 1, 2, 2, 1),
    Sketcher.Constraint("Coincident", 2, 2, 3, 1),
    Sketcher.Constraint("Coincident", 3, 2, 0, 1),
    Sketcher.Constraint("Vertical", 0),
    Sketcher.Constraint("Horizontal", 1),
    Sketcher.Constraint("Vertical", 2),
    Sketcher.Constraint("Horizontal", 3),
    Sketcher.Constraint("Horizontal", 6, 3, 7, 3),
    Sketcher.Constraint("Diameter", 6, Q("5.577349 mm")),
    Sketcher.Constraint("Diameter", 4, Q("19.184554 mm")),
    Sketcher.Constraint("Diameter", 5, Q("4.835602 mm")),
    Sketcher.Constraint("Diameter", 7, Q("6.628465 mm")),
    Sketcher.Constraint("DistanceX", 1, 1, 1, 2, Q("40.095519 mm")),
    Sketcher.Constraint("DistanceY", 0, 2, 0, 1, Q("24.100376 mm")),
    Sketcher.Constraint("DistanceY", 4, 3, -1, 1, Q("26.78987 mm")),
    Sketcher.Constraint("DistanceY", 5, 3, -1, 1, Q("25.908332 mm")),
    Sketcher.Constraint("DistanceY", 6, 3, -1, 1, Q("17.498948 mm")),
    Sketcher.Constraint("DistanceY", 2, 2, -1, 1, Q("12.812992 mm")),
    Sketcher.Constraint("DistanceX", 4, 3, 5, 3, Q("22.582438 mm")),
    Sketcher.Constraint("DistanceX", 6, 3, 5, 3, Q("5.86669 mm")),
    Sketcher.Constraint("DistanceX", 4, 3, 7, 3, Q("24.202042 mm")),
    Sketcher.Constraint("DistanceX", 0, 2, 4, 3, Q("12.475949 mm")),
    Sketcher.Constraint("DistanceX", -1, 1, 4, 3, Q("267.511416 mm")),
])
pad8 = body5.newObject("PartDesign::Pad", "Pad007")
pad8.Profile = sketch15
pad8.Length = 47.333333

doc.recompute()
